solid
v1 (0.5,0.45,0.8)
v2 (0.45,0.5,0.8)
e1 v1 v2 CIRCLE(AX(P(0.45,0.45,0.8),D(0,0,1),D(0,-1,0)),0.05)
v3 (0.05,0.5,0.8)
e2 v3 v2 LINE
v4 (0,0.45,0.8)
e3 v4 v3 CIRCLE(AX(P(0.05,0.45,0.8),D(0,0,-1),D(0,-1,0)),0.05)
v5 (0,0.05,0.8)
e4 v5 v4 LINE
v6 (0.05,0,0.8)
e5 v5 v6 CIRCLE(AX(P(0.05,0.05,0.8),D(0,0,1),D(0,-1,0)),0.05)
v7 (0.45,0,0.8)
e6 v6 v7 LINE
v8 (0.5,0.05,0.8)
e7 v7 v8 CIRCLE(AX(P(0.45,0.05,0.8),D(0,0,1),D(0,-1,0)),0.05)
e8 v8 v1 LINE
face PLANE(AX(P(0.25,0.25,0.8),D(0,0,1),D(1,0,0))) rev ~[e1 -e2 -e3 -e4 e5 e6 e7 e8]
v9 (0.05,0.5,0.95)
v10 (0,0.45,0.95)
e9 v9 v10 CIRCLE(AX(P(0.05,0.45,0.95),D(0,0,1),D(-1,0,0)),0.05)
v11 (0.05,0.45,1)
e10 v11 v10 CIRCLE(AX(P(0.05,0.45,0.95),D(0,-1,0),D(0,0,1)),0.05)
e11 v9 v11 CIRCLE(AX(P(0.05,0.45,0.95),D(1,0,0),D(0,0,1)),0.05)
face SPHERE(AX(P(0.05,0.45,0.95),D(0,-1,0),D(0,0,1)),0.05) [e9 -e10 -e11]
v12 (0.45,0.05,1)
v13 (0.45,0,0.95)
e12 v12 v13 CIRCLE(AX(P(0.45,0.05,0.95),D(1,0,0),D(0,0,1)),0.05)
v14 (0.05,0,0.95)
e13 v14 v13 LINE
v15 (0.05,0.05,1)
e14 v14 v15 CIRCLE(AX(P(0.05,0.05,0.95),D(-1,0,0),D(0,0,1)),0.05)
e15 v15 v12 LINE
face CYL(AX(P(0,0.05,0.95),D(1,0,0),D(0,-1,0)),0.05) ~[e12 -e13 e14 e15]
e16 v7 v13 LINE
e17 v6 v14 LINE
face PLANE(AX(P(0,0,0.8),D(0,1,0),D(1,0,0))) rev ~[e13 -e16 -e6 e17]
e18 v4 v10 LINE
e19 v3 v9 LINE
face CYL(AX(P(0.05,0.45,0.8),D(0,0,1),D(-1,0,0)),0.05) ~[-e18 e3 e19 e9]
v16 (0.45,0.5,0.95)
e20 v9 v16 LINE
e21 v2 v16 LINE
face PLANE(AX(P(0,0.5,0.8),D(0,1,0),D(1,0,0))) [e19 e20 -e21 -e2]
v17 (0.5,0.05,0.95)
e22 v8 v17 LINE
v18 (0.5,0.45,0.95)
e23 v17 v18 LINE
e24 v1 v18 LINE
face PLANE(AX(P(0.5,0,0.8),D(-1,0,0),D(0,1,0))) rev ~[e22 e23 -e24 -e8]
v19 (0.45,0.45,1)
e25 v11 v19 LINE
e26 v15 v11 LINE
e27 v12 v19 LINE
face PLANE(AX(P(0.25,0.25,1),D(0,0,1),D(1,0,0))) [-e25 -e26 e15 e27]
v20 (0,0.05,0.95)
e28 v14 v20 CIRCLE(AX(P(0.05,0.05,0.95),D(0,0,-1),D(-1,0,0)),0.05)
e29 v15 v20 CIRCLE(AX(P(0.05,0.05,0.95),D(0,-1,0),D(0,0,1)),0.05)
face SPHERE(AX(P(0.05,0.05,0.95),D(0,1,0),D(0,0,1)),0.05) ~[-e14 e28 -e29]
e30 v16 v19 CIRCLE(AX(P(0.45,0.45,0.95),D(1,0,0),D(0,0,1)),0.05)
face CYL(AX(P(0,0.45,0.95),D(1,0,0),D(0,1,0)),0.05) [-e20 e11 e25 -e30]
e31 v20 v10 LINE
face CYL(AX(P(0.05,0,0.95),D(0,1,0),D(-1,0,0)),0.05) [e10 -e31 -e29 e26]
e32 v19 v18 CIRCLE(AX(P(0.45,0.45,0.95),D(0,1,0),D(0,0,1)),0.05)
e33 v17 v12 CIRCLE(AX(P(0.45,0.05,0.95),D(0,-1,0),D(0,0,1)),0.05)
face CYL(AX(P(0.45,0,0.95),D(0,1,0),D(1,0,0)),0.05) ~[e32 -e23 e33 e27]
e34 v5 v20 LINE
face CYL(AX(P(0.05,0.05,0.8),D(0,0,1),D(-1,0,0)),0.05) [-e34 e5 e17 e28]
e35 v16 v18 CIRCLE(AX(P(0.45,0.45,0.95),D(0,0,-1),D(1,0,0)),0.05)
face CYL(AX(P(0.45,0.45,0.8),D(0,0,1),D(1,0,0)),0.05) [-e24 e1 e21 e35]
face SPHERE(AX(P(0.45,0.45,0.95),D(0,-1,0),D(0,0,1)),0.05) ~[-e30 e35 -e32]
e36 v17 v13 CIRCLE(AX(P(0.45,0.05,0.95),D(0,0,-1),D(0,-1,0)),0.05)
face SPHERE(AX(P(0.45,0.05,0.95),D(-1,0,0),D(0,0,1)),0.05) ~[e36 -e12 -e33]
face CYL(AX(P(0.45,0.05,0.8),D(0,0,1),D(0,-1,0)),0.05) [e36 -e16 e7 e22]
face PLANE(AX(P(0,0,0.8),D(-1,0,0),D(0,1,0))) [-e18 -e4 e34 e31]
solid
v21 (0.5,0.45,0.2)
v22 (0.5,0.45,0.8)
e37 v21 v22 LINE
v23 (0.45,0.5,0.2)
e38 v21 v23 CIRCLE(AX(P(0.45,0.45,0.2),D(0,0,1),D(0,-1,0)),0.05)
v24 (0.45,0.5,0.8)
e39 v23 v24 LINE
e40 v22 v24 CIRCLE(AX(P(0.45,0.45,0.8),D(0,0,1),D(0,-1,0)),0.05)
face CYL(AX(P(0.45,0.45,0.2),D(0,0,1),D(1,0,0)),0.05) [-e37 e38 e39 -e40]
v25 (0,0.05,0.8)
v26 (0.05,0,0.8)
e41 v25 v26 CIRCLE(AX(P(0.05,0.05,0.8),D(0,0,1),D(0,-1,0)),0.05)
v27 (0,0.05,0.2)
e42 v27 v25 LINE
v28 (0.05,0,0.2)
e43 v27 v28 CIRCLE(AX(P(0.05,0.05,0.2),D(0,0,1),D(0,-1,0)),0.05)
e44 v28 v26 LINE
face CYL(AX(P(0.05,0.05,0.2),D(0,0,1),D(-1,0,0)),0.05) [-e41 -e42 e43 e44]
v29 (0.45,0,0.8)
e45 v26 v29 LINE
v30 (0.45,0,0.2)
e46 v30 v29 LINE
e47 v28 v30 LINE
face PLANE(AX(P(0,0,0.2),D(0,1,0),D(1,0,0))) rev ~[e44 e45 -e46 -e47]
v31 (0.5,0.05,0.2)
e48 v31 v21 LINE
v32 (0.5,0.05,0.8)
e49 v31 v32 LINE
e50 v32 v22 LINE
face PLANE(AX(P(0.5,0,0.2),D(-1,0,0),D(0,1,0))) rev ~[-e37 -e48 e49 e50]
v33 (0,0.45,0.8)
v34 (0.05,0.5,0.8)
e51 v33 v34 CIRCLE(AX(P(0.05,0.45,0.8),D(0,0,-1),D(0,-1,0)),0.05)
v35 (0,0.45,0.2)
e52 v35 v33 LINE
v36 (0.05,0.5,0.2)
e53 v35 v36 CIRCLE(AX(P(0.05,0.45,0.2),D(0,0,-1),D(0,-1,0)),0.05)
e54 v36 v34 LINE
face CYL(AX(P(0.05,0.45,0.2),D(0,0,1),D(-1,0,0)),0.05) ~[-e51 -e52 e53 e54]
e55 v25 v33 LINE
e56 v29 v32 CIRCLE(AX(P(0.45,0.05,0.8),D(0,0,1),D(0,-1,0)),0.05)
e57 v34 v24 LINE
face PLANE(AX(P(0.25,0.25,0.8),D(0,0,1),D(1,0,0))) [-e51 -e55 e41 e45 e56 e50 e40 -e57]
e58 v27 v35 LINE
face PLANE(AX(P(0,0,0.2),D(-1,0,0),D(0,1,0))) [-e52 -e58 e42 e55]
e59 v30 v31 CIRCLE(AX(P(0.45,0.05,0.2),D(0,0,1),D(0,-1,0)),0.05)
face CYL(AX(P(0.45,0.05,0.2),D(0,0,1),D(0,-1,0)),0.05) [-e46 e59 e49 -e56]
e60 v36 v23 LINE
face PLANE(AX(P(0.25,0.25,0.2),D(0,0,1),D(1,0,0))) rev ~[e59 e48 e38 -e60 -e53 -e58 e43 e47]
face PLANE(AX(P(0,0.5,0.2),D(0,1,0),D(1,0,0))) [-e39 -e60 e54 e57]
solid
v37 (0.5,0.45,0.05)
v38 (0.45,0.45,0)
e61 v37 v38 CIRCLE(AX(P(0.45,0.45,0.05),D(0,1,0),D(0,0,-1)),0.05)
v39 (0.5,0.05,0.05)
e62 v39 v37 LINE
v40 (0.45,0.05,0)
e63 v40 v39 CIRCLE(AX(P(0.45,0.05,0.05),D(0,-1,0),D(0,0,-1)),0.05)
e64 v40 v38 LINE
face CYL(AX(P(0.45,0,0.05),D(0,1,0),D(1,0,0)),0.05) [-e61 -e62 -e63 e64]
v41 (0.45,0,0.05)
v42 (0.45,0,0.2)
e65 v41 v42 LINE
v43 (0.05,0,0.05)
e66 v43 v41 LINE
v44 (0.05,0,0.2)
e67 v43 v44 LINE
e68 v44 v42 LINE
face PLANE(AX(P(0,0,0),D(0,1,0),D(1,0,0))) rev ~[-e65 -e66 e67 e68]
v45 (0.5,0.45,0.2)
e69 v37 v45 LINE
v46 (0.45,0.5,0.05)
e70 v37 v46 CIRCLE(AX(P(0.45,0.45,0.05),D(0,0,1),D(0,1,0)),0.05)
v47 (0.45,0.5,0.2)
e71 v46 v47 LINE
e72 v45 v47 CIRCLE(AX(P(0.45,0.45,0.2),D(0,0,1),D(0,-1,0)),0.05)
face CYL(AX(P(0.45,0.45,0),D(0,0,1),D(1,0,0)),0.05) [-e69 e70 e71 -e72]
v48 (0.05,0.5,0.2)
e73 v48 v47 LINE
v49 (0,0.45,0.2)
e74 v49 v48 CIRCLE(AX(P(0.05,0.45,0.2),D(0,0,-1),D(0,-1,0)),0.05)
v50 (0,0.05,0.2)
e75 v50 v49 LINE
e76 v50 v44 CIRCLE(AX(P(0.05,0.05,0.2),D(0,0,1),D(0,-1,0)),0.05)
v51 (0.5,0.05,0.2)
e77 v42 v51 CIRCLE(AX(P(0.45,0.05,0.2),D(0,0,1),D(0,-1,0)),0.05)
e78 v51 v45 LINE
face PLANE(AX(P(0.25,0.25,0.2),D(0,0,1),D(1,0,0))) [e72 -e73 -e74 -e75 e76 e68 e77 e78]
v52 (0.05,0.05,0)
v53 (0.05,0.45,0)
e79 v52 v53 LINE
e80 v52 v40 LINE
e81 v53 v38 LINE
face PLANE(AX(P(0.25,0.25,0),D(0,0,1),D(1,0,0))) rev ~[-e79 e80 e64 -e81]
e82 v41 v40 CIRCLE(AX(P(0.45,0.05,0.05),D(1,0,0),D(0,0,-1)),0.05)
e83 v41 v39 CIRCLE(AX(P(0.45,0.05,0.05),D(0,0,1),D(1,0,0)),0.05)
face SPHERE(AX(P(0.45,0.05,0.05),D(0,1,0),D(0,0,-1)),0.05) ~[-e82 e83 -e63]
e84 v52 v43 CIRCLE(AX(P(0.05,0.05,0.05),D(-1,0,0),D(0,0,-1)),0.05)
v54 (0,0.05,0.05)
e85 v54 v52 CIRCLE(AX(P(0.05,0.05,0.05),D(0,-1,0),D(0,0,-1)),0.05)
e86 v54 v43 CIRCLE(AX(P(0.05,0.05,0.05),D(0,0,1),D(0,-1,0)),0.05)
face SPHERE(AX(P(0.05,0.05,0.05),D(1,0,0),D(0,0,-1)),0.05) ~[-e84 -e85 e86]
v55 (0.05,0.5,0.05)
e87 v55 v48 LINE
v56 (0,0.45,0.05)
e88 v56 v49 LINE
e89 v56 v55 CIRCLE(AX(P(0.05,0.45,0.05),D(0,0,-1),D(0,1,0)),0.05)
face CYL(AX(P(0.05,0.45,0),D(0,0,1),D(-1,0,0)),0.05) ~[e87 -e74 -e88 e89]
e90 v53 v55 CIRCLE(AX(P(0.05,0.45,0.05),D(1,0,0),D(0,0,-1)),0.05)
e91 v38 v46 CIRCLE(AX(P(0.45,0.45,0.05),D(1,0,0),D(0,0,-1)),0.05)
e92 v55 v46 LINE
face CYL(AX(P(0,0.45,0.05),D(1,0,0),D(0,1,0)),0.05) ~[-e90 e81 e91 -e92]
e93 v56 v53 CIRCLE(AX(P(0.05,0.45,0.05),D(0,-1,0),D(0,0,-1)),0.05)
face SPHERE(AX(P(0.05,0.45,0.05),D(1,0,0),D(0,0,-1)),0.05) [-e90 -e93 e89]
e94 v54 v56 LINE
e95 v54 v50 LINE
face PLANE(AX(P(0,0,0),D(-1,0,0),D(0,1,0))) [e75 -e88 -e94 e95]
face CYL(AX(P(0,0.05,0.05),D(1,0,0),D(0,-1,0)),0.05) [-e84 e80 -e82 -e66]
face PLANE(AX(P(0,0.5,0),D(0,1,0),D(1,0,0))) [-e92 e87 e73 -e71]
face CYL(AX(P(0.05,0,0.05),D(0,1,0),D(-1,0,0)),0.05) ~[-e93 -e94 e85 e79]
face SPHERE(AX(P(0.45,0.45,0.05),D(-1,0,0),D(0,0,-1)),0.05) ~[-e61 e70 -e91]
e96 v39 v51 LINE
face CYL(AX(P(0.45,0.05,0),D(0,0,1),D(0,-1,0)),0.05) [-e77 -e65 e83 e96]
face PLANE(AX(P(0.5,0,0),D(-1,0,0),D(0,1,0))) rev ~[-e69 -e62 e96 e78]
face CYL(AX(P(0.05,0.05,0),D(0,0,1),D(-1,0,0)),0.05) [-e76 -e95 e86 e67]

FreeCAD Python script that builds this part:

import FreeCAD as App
import Part
import Sketcher

V = App.Vector
Q = App.Units.Quantity


def edges_at(feature, points):
    """Names of the edges that pass closest to the given points."""
    edges = feature.Shape.Edges
    near = lambda p: min(range(len(edges)), key=lambda i: edges[i].distToShape(Part.Vertex(*p))[0])
    return sorted({f"Edge{near(p) + 1}" for p in points})

doc = App.newDocument("Part")
body = doc.addObject("PartDesign::Body", "Body")

# Sketch on XY plane
sketch1 = body.newObject("Sketcher::SketchObject", "Sketch")
sketch1.AttachmentSupport = (doc.getObject("XY_Plane"), [""])
sketch1.MapMode = "FlatFace"
sketch1.addGeometry([
    Part.LineSegment(V(0, 0.5, 0), V(0, 0, 0)),
    Part.LineSegment(V(0, 0, 0), V(0.5, 0, 0)),
    Part.LineSegment(V(0.5, 0, 0), V(0.5, 0.5, 0)),
    Part.LineSegment(V(0.5, 0.5, 0), V(0, 0.5, 0)),
], False)
sketch1.addConstraint([
    Sketcher.Constraint("Coincident", 0, 2, 1, 1),
    Sketcher.Constraint("Coincident", 1, 2, 2, 1),
    Sketcher.Constraint("Coincident", 2, 2, 3, 1),
    Sketcher.Constraint("Coincident", 3, 2, 0, 1),
    Sketcher.Constraint("Vertical", 0),
    Sketcher.Constraint("Horizontal", 1),
    Sketcher.Constraint("Vertical", 2),
    Sketcher.Constraint("Horizontal", 3),
    Sketcher.Constraint("Coincident", 0, 2, -1, 1),
    Sketcher.Constraint("Equal", 3, 0),
    Sketcher.Constraint("DistanceX", 1, 1, 1, 2, Q("0.5 mm")),
])
pad1 = body.newObject("PartDesign::Pad", "Pad")
pad1.Profile = sketch1
pad1.Length = 0.2
doc.recompute()

fillet = body.newObject("PartDesign::Fillet", "Fillet")
fillet.Base = (pad1, edges_at(pad1, [
    (0.25, 0.5, 0),
    (0.5, 0.25, 0),
    (0.25, 0, 0),
    (0, 0.25, 0),
    (0, 0.5, 0.1),
    (0.5, 0.5, 0.1),
    (0.5, 0, 0.1),
    (0, 0, 0.1),
]))
fillet.Radius = 0.05
body2 = doc.addObject("PartDesign::Body", "Body001")

# Sketch on XY plane
sketch2 = body2.newObject("Sketcher::SketchObject", "Sketch001")
sketch2.AttachmentSupport = (doc.getObject("XY_Plane001"), [""])
sketch2.MapMode = "FlatFace"
sketch2.AttachmentOffset = App.Placement(V(0, 0, 0.2), App.Rotation())
sketch2.addGeometry([
    Part.LineSegment(V(0, 0.5, 0), V(0, 0, 0)),
    Part.LineSegment(V(0, 0, 0), V(0.5, 0, 0)),
    Part.LineSegment(V(0.5, 0, 0), V(0.5, 0.5, 0)),
    Part.LineSegment(V(0.5, 0.5, 0), V(0, 0.5, 0)),
], False)
sketch2.addConstraint([
    Sketcher.Constraint("Coincident", 0, 2, 1, 1),
    Sketcher.Constraint("Coincident", 1, 2, 2, 1),
    Sketcher.Constraint("Coincident", 2, 2, 3, 1),
    Sketcher.Constraint("Coincident", 3, 2, 0, 1),
    Sketcher.Constraint("Vertical", 0),
    Sketcher.Constraint("Horizontal", 1),
    Sketcher.Constraint("Vertical", 2),
    Sketcher.Constraint("Horizontal", 3),
    Sketcher.Constraint("Coincident", 0, 2, -1, 1),
    Sketcher.Constraint("Equal", 3, 0),
    Sketcher.Constraint("DistanceX", 1, 1, 1, 2, Q("0.5 mm")),
])
pad2 = body2.newObject("PartDesign::Pad", "Pad001")
pad2.Profile = sketch2
pad2.Length = 0.6
doc.recompute()

fillet2 = body2.newObject("PartDesign::Fillet", "Fillet001")
fillet2.Base = (pad2, edges_at(pad2, [
    (0.5, 0.5, 0.5),
    (0.5, 0, 0.5),
    (0, 0, 0.5),
    (0, 0.5, 0.5),
]))
fillet2.Radius = 0.05
body3 = doc.addObject("PartDesign::Body", "Body002")

# Sketch on XY plane
sketch3 = body3.newObject("Sketcher::SketchObject", "Sketch002")
sketch3.AttachmentSupport = (doc.getObject("XY_Plane002"), [""])
sketch3.MapMode = "FlatFace"
sketch3.AttachmentOffset = App.Placement(V(0, 0, 0.8), App.Rotation())
sketch3.addGeometry([
    Part.LineSegment(V(0, 0.5, 0), V(0, 0, 0)),
    Part.LineSegment(V(0, 0, 0), V(0.5, 0, 0)),
    Part.LineSegment(V(0.5, 0, 0), V(0.5, 0.5, 0)),
    Part.LineSegment(V(0.5, 0.5, 0), V(0, 0.5, 0)),
], False)
sketch3.addConstraint([
    Sketcher.Constraint("Coincident", 0, 2, 1, 1),
    Sketcher.Constraint("Coincident", 1, 2, 2, 1),
    Sketcher.Constraint("Coincident", 2, 2, 3, 1),
    Sketcher.Constraint("Coincident", 3, 2, 0, 1),
    Sketcher.Constraint("Vertical", 0),
    Sketcher.Constraint("Horizontal", 1),
    Sketcher.Constraint("Vertical", 2),
    Sketcher.Constraint("Horizontal", 3),
    Sketcher.Constraint("Coincident", 0, 2, -1, 1),
    Sketcher.Constraint("Equal", 3, 0),
    Sketcher.Constraint("DistanceX", 1, 1, 1, 2, Q("0.5 mm")),
])
pad3 = body3.newObject("PartDesign::Pad", "Pad002")
pad3.Profile = sketch3
pad3.Length = 0.2
doc.recompute()

fillet3 = body3.newObject("PartDesign::Fillet", "Fillet002")
fillet3.Base = (pad3, edges_at(pad3, [
    (0, 0.25, 1),
    (0.25, 0, 1),
    (0.5, 0.25, 1),
    (0.25, 0.5, 1),
    (0.5, 0, 0.9),
    (0, 0, 0.9),
    (0, 0.5, 0.9),
    (0.5, 0.5, 0.9),
]))
fillet3.Radius = 0.05

doc.recompute()
